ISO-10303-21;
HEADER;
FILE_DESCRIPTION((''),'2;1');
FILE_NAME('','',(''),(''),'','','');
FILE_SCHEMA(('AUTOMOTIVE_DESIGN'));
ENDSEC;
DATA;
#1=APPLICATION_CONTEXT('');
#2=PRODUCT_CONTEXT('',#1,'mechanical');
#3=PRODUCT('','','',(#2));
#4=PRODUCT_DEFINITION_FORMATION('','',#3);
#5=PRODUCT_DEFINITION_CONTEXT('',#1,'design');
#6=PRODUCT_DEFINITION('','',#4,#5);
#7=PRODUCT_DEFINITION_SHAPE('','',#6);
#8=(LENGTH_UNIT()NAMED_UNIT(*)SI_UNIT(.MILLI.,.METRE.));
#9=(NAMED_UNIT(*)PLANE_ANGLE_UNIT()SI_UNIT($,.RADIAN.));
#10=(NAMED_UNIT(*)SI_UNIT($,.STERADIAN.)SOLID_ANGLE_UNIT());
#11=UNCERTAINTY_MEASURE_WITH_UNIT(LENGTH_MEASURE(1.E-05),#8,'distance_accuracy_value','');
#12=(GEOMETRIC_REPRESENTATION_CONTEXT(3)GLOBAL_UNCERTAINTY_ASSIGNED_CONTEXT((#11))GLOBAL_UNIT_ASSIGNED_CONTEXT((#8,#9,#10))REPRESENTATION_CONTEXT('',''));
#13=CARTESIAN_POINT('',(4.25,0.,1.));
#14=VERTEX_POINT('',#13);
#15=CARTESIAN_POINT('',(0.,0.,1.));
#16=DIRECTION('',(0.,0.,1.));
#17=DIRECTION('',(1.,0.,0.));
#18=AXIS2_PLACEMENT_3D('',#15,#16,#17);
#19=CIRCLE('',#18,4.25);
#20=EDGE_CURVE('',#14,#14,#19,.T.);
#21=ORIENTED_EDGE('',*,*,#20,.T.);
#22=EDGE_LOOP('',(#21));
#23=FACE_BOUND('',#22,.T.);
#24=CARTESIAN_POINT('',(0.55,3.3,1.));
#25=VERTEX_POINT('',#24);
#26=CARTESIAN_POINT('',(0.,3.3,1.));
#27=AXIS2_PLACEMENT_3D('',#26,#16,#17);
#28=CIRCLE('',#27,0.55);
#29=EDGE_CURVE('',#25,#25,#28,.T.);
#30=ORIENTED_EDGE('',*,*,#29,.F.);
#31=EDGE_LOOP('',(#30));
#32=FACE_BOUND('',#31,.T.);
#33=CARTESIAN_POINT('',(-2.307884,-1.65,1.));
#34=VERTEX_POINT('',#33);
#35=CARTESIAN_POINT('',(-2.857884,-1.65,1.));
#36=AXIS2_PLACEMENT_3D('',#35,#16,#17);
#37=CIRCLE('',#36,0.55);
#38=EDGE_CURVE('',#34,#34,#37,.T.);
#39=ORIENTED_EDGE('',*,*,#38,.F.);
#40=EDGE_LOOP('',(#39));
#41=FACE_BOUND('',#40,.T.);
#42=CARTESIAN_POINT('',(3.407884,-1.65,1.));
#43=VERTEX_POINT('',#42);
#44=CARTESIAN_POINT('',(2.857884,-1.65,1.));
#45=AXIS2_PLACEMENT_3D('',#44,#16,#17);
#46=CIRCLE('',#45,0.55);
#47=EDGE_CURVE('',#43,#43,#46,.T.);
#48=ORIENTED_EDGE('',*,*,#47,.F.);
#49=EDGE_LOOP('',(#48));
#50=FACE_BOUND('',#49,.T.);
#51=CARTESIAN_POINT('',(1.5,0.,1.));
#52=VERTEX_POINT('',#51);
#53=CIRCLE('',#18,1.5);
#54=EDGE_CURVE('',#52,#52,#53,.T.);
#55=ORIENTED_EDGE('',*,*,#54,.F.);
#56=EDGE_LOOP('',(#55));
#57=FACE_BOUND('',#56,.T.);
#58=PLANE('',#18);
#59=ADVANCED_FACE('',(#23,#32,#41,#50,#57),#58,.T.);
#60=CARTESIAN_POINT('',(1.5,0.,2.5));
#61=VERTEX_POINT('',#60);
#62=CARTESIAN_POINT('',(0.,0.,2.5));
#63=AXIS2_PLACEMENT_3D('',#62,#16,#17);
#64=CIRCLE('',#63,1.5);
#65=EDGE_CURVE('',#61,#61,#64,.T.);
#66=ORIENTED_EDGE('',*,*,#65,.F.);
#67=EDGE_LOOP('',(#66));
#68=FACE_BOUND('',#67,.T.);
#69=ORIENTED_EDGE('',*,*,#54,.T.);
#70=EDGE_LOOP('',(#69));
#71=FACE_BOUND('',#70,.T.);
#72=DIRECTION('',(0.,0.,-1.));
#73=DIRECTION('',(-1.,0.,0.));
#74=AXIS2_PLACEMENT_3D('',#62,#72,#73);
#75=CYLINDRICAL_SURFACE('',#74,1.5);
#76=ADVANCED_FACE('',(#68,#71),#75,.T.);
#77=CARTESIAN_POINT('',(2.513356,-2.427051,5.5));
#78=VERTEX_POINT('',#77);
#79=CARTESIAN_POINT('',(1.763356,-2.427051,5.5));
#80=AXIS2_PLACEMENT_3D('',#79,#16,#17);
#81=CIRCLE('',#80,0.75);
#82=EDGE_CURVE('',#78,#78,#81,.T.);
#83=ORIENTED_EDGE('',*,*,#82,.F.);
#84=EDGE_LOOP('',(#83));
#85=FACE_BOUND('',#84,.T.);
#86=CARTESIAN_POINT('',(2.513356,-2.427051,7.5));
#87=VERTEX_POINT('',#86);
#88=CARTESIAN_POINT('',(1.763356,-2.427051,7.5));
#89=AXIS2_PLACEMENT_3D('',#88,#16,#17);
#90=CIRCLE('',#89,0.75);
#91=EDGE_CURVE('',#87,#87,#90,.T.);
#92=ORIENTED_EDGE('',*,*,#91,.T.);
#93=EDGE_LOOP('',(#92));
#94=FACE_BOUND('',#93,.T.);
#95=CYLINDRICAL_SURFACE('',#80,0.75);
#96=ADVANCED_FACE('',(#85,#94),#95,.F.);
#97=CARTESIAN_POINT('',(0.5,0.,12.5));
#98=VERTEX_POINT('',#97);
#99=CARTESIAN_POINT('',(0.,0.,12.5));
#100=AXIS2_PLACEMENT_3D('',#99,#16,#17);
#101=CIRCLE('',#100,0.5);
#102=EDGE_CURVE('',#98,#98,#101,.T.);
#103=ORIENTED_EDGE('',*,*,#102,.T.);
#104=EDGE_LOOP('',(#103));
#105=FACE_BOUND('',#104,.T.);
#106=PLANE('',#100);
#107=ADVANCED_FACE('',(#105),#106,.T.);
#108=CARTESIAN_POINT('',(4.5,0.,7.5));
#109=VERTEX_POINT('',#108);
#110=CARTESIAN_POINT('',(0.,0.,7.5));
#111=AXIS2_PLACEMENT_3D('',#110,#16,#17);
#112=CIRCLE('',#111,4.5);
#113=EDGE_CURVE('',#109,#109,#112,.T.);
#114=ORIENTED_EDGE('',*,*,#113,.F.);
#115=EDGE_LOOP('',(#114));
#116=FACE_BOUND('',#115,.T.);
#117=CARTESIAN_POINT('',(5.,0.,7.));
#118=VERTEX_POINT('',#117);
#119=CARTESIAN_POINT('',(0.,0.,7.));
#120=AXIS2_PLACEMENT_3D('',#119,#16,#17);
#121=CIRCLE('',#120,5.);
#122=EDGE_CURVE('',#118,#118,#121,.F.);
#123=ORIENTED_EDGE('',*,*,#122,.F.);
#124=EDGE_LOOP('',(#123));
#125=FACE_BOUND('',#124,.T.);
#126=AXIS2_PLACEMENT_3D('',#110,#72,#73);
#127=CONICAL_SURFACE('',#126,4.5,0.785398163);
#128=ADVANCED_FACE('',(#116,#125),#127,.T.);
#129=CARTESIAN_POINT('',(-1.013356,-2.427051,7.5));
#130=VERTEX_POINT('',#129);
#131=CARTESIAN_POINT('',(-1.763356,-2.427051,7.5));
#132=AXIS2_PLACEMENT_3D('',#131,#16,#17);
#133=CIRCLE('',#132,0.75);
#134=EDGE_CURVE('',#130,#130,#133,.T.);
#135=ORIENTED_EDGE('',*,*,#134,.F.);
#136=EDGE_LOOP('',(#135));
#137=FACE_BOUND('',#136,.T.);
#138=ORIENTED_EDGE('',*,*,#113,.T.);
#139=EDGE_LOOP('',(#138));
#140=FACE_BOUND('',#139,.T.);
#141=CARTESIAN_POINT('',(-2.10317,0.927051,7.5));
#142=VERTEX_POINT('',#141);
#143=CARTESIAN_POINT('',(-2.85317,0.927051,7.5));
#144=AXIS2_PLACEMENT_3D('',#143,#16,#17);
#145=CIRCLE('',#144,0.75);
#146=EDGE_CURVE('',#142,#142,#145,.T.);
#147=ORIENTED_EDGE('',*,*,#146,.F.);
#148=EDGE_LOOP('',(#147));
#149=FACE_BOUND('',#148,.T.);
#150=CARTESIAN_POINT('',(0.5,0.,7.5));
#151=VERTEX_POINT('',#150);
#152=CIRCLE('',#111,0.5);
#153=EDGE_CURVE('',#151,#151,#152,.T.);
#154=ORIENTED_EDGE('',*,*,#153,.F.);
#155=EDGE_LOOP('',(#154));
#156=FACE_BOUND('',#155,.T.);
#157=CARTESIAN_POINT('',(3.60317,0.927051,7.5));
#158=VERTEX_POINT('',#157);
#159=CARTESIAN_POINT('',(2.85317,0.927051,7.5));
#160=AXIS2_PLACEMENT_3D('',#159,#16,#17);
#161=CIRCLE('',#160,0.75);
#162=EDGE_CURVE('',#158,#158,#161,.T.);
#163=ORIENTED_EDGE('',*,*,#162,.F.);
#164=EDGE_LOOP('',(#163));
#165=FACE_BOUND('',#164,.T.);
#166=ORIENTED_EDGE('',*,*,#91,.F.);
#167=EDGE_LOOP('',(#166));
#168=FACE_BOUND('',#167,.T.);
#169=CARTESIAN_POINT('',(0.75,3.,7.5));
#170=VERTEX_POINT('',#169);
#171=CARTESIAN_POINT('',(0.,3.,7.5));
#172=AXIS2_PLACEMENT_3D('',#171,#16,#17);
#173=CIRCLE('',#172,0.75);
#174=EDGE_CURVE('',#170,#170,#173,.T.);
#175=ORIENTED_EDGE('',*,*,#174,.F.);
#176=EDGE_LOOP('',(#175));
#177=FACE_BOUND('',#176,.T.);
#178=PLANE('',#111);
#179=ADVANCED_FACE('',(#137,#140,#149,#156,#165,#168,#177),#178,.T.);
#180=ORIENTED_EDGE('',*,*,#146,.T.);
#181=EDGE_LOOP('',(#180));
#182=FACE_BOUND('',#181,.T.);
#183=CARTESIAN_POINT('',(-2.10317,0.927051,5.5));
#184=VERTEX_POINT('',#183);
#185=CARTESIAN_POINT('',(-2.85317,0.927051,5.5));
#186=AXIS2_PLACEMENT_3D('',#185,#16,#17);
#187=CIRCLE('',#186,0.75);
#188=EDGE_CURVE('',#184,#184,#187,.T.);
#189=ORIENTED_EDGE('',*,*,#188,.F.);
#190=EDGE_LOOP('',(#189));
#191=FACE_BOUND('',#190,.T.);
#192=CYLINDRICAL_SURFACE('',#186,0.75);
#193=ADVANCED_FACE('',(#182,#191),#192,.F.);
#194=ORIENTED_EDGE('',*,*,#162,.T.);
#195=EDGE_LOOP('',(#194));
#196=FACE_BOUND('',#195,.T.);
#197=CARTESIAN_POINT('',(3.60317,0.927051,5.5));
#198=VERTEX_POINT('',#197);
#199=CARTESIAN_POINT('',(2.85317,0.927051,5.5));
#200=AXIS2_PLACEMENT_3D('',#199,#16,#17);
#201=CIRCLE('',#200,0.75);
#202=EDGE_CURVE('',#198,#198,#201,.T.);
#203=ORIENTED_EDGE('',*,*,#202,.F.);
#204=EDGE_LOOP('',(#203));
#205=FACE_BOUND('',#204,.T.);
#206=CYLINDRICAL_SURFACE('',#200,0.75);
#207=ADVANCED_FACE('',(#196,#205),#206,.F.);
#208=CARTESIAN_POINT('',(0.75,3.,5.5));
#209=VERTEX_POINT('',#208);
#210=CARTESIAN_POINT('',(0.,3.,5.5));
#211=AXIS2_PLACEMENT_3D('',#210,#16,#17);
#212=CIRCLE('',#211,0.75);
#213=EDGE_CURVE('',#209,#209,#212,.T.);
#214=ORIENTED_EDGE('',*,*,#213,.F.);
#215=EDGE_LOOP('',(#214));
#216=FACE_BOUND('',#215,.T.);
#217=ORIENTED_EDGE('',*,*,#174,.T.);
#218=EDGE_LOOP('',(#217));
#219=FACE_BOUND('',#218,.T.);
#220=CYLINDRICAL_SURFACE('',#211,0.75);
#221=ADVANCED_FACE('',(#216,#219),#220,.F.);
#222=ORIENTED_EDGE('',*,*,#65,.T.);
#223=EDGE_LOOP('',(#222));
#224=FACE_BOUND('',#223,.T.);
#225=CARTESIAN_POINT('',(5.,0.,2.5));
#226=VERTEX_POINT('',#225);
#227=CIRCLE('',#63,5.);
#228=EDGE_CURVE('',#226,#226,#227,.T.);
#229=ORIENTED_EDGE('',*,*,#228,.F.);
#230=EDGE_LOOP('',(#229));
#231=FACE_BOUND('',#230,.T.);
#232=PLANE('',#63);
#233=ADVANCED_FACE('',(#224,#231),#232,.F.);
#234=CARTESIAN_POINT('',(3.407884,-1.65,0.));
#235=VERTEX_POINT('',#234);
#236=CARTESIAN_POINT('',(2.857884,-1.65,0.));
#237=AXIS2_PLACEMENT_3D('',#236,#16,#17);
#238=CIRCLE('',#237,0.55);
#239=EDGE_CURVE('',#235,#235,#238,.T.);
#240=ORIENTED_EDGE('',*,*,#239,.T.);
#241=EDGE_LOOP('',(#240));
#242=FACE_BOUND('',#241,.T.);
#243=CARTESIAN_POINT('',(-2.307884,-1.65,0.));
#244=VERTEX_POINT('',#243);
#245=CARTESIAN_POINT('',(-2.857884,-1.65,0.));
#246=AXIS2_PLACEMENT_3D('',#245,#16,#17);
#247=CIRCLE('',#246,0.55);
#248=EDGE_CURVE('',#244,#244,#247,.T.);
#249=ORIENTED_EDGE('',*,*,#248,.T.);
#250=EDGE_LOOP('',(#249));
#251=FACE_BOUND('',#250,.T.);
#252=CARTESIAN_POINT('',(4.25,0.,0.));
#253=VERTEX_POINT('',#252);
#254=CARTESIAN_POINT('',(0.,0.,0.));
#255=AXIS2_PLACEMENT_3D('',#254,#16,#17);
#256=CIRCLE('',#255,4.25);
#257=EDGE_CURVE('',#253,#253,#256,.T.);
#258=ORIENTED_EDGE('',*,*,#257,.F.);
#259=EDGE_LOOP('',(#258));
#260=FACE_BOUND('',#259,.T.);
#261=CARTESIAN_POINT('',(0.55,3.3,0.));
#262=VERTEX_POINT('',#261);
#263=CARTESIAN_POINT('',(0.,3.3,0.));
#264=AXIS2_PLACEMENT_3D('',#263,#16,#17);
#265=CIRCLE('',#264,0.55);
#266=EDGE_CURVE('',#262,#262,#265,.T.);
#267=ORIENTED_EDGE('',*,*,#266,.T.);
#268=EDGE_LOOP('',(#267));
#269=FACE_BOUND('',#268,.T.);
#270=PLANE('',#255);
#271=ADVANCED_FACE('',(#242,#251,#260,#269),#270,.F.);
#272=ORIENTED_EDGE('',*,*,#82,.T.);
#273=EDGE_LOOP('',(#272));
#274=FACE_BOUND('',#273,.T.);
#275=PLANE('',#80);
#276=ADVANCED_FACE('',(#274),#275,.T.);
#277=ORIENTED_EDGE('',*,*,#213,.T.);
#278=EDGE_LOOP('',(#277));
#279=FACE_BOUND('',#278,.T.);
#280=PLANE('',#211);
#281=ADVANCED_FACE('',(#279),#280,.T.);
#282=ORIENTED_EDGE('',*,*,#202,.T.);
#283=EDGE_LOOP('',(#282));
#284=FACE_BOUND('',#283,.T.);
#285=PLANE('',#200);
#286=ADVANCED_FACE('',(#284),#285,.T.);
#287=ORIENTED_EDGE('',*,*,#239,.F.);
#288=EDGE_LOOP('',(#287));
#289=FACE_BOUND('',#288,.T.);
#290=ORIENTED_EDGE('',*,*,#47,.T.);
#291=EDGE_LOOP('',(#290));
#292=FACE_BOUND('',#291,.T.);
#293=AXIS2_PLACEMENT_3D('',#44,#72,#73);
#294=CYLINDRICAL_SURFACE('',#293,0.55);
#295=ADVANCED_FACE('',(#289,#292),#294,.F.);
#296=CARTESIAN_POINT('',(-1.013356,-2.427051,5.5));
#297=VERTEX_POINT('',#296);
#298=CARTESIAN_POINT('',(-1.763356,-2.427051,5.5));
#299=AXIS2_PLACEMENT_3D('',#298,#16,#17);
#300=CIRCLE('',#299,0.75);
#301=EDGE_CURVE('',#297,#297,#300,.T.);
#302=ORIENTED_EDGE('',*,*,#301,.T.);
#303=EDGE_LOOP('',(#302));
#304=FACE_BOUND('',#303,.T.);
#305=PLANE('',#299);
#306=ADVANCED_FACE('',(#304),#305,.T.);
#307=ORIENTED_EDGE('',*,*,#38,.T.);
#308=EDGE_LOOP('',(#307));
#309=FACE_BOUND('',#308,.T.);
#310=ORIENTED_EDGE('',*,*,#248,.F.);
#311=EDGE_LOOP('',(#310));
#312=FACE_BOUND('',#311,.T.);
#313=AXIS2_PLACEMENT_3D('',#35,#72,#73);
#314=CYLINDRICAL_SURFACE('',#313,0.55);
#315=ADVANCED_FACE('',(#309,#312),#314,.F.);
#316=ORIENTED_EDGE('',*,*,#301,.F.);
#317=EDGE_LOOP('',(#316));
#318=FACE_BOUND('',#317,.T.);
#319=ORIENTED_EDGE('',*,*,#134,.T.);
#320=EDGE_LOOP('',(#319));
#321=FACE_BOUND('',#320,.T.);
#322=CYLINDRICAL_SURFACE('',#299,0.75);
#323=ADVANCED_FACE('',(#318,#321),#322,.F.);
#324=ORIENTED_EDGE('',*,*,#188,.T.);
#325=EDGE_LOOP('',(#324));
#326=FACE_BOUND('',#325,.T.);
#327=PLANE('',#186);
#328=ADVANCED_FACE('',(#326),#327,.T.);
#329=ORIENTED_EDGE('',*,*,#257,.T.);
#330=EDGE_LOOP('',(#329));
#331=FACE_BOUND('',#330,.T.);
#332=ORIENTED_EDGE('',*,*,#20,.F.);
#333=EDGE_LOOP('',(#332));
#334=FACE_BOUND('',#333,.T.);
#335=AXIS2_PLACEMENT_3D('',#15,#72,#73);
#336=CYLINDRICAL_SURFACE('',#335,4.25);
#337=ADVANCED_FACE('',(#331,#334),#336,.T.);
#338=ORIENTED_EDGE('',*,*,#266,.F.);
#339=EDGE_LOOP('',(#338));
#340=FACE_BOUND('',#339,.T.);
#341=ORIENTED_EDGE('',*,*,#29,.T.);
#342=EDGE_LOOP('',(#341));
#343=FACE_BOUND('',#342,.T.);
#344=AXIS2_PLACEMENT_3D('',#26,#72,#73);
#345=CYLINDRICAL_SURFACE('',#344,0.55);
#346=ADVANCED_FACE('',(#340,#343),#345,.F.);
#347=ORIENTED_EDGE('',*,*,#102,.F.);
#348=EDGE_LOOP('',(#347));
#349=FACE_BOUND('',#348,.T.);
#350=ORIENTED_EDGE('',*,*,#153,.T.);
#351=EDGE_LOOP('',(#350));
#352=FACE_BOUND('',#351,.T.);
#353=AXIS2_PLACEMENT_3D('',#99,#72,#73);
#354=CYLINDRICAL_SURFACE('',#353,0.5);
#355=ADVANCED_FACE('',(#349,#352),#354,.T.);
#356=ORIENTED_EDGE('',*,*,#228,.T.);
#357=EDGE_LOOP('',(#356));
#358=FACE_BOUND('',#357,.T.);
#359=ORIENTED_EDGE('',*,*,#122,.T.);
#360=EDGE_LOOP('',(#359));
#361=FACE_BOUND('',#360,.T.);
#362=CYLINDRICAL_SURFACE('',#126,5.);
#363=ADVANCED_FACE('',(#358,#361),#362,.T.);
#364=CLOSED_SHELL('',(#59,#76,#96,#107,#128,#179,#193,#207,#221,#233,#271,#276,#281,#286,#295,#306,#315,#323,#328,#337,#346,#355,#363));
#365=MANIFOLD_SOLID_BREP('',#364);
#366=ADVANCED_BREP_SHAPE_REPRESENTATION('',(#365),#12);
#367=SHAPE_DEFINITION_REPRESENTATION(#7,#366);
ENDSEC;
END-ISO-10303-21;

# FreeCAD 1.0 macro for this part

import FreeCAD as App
import Part
import Sketcher
from FreeCAD import Vector
Q = App.Units.Quantity


def edges_at(feature, points):
    """Names of the edges that pass closest to the given points."""
    edges = feature.Shape.Edges
    near = lambda p: min(range(len(edges)), key=lambda i: edges[i].distToShape(Part.Vertex(*p))[0])
    return sorted({f"Edge{near(p) + 1}" for p in points})

doc = App.newDocument("Part")
body = doc.addObject("PartDesign::Body", "Body")

sketch1 = body.newObject("Sketcher::SketchObject", "Sketch")
sketch1.AttachmentSupport = (doc.getObject("XY_Plane"), [""])
sketch1.MapMode = "FlatFace"
sketch1.addGeometry(Part.Circle(Vector(0, 0, 0), Vector(0, 0, 1), 4.2), False)
sketch1.addGeometry(Part.Circle(Vector(-2.9, -1.6, 0), Vector(0, 0, 1), 0.6), False)
sketch1.addGeometry(Part.Circle(Vector(2.9, -1.6, 0), Vector(0, 0, 1), 0.6), False)
sketch1.addGeometry(Part.Circle(Vector(0, 3.3, 0), Vector(0, 0, 1), 0.6), False)
sketch1.addConstraint(Sketcher.Constraint("Coincident", 0, 3, -1, 1))
sketch1.addConstraint(Sketcher.Constraint("Equal", 1, 2))
sketch1.addConstraint(Sketcher.Constraint("Equal", 2, 3))
sketch1.addConstraint(Sketcher.Constraint("Symmetric", 1, 3, 2, 3, -2))
sketch1.addConstraint(Sketcher.Constraint("PointOnObject", 3, 3, -2))
sketch1.addConstraint(Sketcher.Constraint("Diameter", 0, Q("8.5 mm")))
sketch1.addConstraint(Sketcher.Constraint("Diameter", 1, Q("1.1 mm")))
sketch1.addConstraint(Sketcher.Constraint("DistanceY", -1, 1, 3, 3, Q("3.3 mm")))
sketch1.addConstraint(Sketcher.Constraint("DistanceY", 1, 3, -1, 1, Q("1.65 mm")))
sketch1.addConstraint(Sketcher.Constraint("DistanceX", 1, 3, -1, 1, Q("2.857884 mm")))
pad1 = body.newObject("PartDesign::Pad", "Pad")
pad1.Profile = sketch1
pad1.Length = 1

sketch2 = body.newObject("Sketcher::SketchObject", "Sketch001")
sketch2.AttachmentSupport = (doc.getObject("XY_Plane"), [""])
sketch2.MapMode = "FlatFace"
sketch2.AttachmentOffset = App.Placement(Vector(0, 0, 1), App.Rotation())
sketch2.addGeometry(Part.Circle(Vector(0, 0, 0), Vector(0, 0, 1), 1.5), False)
sketch2.addConstraint(Sketcher.Constraint("Coincident", 0, 3, -1, 1))
sketch2.addConstraint(Sketcher.Constraint("Diameter", 0, Q("3 mm")))
pad2 = body.newObject("PartDesign::Pad", "Pad001")
pad2.Profile = sketch2
pad2.Length = 1.5

sketch3 = body.newObject("Sketcher::SketchObject", "Sketch002")
sketch3.AttachmentSupport = (doc.getObject("XY_Plane"), [""])
sketch3.MapMode = "FlatFace"
sketch3.AttachmentOffset = App.Placement(Vector(0, 0, 2.5), App.Rotation())
sketch3.addGeometry(Part.Circle(Vector(0, 0, 0), Vector(0, 0, 1), 5), False)
sketch3.addConstraint(Sketcher.Constraint("Coincident", 0, 3, -1, 1))
sketch3.addConstraint(Sketcher.Constraint("Diameter", 0, Q("10 mm")))
pad3 = body.newObject("PartDesign::Pad", "Pad002")
pad3.Profile = sketch3
pad3.Length = 5

sketch4 = body.newObject("Sketcher::SketchObject", "Sketch003")
sketch4.AttachmentSupport = (doc.getObject("XY_Plane"), [""])
sketch4.MapMode = "FlatFace"
sketch4.AttachmentOffset = App.Placement(Vector(0, 0, 7.5), App.Rotation())
sketch4.addGeometry(Part.Circle(Vector(0, 0, 0), Vector(0, 0, 1), 0.5), False)
sketch4.addConstraint(Sketcher.Constraint("Coincident", 0, 3, -1, 1))
sketch4.addConstraint(Sketcher.Constraint("Diameter", 0, Q("1 mm")))
pad4 = body.newObject("PartDesign::Pad", "Pad003")
pad4.Profile = sketch4
pad4.Length = 5

sketch5 = body.newObject("Sketcher::SketchObject", "Sketch004")
sketch5.AttachmentSupport = (doc.getObject("XY_Plane"), [""])
sketch5.MapMode = "FlatFace"
sketch5.AttachmentOffset = App.Placement(Vector(0, 0, 7.5), App.Rotation())
sketch5.addGeometry(Part.Circle(Vector(0, 3, 0), Vector(0, 0, 1), 0.8), False)
sketch5.addGeometry(Part.Circle(Vector(2.9, 0.9, 0), Vector(0, 0, 1), 0.8), False)
sketch5.addGeometry(Part.Circle(Vector(1.8, -2.4, 0), Vector(0, 0, 1), 0.8), False)
sketch5.addGeometry(Part.Circle(Vector(-1.8, -2.4, 0), Vector(0, 0, 1), 0.8), False)
sketch5.addGeometry(Part.Circle(Vector(-2.9, 0.9, 0), Vector(0, 0, 1), 0.8), False)
sketch5.addConstraint(Sketcher.Constraint("Equal", 0, 1))
sketch5.addConstraint(Sketcher.Constraint("Equal", 1, 2))
sketch5.addConstraint(Sketcher.Constraint("Equal", 2, 3))
sketch5.addConstraint(Sketcher.Constraint("Equal", 3, 4))
sketch5.addConstraint(Sketcher.Constraint("Symmetric", 2, 3, 3, 3, -2))
sketch5.addConstraint(Sketcher.Constraint("Symmetric", 1, 3, 4, 3, -2))
sketch5.addConstraint(Sketcher.Constraint("PointOnObject", 0, 3, -2))
sketch5.addConstraint(Sketcher.Constraint("Diameter", 0, Q("1.5 mm")))
sketch5.addConstraint(Sketcher.Constraint("DistanceY", -1, 1, 0, 3, Q("3 mm")))
sketch5.addConstraint(Sketcher.Constraint("DistanceY", 2, 3, 1, 3, Q("3.354102 mm")))
sketch5.addConstraint(Sketcher.Constraint("DistanceX", -1, 1, 1, 3, Q("2.85317 mm")))
sketch5.addConstraint(Sketcher.Constraint("DistanceY", -1, 1, 1, 3, Q("0.927051 mm")))
sketch5.addConstraint(Sketcher.Constraint("DistanceX", 3, 3, 2, 3, Q("3.526712 mm")))
pocket1 = body.newObject("PartDesign::Pocket", "Pocket")
pocket1.Profile = sketch5
pocket1.Length = 2
doc.recompute()

chamfer = body.newObject("PartDesign::Chamfer", "Chamfer")
chamfer.Base = (pocket1, edges_at(pocket1, [(-5, 0, 7.5)]))
chamfer.Size = 0.5

doc.recompute()
